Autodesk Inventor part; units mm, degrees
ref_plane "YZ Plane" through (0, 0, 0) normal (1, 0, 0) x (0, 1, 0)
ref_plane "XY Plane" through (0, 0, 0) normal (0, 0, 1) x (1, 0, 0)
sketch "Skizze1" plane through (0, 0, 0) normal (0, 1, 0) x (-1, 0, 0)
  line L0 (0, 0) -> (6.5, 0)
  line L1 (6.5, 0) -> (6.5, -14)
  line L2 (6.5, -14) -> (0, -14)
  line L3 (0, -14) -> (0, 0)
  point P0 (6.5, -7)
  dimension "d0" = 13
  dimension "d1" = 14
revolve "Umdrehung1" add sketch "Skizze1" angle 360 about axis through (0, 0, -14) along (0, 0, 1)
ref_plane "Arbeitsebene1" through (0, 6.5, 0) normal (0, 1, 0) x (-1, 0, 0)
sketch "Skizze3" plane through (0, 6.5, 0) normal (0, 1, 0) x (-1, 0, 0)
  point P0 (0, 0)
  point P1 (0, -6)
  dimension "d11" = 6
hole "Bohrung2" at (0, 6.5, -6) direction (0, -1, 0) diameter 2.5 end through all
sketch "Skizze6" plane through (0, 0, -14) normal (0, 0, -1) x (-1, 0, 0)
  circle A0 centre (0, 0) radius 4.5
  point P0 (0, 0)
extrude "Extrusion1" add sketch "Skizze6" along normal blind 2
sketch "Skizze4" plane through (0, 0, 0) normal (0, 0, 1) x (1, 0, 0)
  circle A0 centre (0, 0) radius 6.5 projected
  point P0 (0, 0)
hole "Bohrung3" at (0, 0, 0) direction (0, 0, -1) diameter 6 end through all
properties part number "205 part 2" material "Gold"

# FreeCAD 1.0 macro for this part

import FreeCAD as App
import Part
import Sketcher
from FreeCAD import Vector
Q = App.Units.Quantity


def add_polygon(sketch, points):
    """Adds a closed chain of lines whose ends are joined by coincident constraints."""
    first, n = sketch.GeometryCount, len(points)
    for a, b in zip(points, points[1:] + points[:1]):
        sketch.addGeometry(Part.LineSegment(App.Vector(*a, 0), App.Vector(*b, 0)), False)
    for i in range(n):
        sketch.addConstraint(Sketcher.Constraint("Coincident", first + i, 2, first + (i + 1) % n, 1))

doc = App.newDocument("Part")
body = doc.addObject("PartDesign::Body", "Body")

# Sketch on XZ plane
sketch1 = body.newObject("Sketcher::SketchObject", "Sketch")
sketch1.AttachmentSupport = (doc.getObject("XZ_Plane"), [""])
sketch1.MapMode = "FlatFace"
add_polygon(sketch1, [(-6.5, 0), (0, 0), (0, -14), (-6.5, -14)])  # lines 0-3
sketch1.addConstraint(Sketcher.Constraint("Horizontal", 0))
sketch1.addConstraint(Sketcher.Constraint("Vertical", 1))
sketch1.addConstraint(Sketcher.Constraint("Horizontal", 2))
sketch1.addConstraint(Sketcher.Constraint("Vertical", 3))
sketch1.addConstraint(Sketcher.Constraint("Coincident", 0, 2, -1, 1))
sketch1.addConstraint(Sketcher.Constraint("DistanceY", 1, 2, 1, 1, Q("14 mm")))
sketch1.addConstraint(Sketcher.Constraint("DistanceX", 0, 1, 0, 2, Q("6.5 mm")))
revolution = body.newObject("PartDesign::Revolution", "Revolution")
revolution.Profile = sketch1
revolution.ReferenceAxis = (sketch1, ["V_Axis"])
revolution.Angle = 360

# Sketch on XZ plane
sketch2 = body.newObject("Sketcher::SketchObject", "Sketch001")
sketch2.AttachmentSupport = (doc.getObject("XZ_Plane"), [""])
sketch2.MapMode = "FlatFace"
sketch2.AttachmentOffset = App.Placement(Vector(0, 0, -6.5), App.Rotation())
sketch2.addGeometry(Part.Circle(Vector(0, -6, 0), Vector(0, 0, 1), 1.25), False)
sketch2.addConstraint(Sketcher.Constraint("PointOnObject", 0, 3, -2))
sketch2.addConstraint(Sketcher.Constraint("Diameter", 0, Q("2.5 mm")))
sketch2.addConstraint(Sketcher.Constraint("DistanceY", 0, 3, -1, 1, Q("6 mm")))
doc.recompute()
hole = body.newObject("PartDesign::Hole", "Hole")
hole.Profile = sketch2
hole.ThreadType = "None"
hole.Diameter = 2.5
hole.DepthType = "ThroughAll"
hole.Reversed = True

# Sketch on XY plane
sketch3 = body.newObject("Sketcher::SketchObject", "Sketch002")
sketch3.AttachmentSupport = (doc.getObject("XY_Plane"), [""])
sketch3.MapMode = "FlatFace"
sketch3.AttachmentOffset = App.Placement(Vector(0, 0, -14), App.Rotation())
sketch3.addGeometry(Part.Circle(Vector(0, 0, 0), Vector(0, 0, 1), 4.5), False)
sketch3.addConstraint(Sketcher.Constraint("Coincident", 0, 3, -1, 1))
sketch3.addConstraint(Sketcher.Constraint("Diameter", 0, Q("9 mm")))
pad1 = body.newObject("PartDesign::Pad", "Pad")
pad1.Profile = sketch3
pad1.Length = 2
pad1.Reversed = True

# Sketch on XY plane
sketch4 = body.newObject("Sketcher::SketchObject", "Sketch003")
sketch4.AttachmentSupport = (doc.getObject("XY_Plane"), [""])
sketch4.MapMode = "FlatFace"
sketch4.addGeometry(Part.Circle(Vector(0, 0, 0), Vector(0, 0, 1), 3), False)
sketch4.addConstraint(Sketcher.Constraint("Coincident", 0, 3, -1, 1))
sketch4.addConstraint(Sketcher.Constraint("Diameter", 0, Q("6 mm")))
doc.recompute()
hole2 = body.newObject("PartDesign::Hole", "Hole001")
hole2.Profile = sketch4
hole2.ThreadType = "None"
hole2.Diameter = 6
hole2.DepthType = "ThroughAll"

doc.recompute()
